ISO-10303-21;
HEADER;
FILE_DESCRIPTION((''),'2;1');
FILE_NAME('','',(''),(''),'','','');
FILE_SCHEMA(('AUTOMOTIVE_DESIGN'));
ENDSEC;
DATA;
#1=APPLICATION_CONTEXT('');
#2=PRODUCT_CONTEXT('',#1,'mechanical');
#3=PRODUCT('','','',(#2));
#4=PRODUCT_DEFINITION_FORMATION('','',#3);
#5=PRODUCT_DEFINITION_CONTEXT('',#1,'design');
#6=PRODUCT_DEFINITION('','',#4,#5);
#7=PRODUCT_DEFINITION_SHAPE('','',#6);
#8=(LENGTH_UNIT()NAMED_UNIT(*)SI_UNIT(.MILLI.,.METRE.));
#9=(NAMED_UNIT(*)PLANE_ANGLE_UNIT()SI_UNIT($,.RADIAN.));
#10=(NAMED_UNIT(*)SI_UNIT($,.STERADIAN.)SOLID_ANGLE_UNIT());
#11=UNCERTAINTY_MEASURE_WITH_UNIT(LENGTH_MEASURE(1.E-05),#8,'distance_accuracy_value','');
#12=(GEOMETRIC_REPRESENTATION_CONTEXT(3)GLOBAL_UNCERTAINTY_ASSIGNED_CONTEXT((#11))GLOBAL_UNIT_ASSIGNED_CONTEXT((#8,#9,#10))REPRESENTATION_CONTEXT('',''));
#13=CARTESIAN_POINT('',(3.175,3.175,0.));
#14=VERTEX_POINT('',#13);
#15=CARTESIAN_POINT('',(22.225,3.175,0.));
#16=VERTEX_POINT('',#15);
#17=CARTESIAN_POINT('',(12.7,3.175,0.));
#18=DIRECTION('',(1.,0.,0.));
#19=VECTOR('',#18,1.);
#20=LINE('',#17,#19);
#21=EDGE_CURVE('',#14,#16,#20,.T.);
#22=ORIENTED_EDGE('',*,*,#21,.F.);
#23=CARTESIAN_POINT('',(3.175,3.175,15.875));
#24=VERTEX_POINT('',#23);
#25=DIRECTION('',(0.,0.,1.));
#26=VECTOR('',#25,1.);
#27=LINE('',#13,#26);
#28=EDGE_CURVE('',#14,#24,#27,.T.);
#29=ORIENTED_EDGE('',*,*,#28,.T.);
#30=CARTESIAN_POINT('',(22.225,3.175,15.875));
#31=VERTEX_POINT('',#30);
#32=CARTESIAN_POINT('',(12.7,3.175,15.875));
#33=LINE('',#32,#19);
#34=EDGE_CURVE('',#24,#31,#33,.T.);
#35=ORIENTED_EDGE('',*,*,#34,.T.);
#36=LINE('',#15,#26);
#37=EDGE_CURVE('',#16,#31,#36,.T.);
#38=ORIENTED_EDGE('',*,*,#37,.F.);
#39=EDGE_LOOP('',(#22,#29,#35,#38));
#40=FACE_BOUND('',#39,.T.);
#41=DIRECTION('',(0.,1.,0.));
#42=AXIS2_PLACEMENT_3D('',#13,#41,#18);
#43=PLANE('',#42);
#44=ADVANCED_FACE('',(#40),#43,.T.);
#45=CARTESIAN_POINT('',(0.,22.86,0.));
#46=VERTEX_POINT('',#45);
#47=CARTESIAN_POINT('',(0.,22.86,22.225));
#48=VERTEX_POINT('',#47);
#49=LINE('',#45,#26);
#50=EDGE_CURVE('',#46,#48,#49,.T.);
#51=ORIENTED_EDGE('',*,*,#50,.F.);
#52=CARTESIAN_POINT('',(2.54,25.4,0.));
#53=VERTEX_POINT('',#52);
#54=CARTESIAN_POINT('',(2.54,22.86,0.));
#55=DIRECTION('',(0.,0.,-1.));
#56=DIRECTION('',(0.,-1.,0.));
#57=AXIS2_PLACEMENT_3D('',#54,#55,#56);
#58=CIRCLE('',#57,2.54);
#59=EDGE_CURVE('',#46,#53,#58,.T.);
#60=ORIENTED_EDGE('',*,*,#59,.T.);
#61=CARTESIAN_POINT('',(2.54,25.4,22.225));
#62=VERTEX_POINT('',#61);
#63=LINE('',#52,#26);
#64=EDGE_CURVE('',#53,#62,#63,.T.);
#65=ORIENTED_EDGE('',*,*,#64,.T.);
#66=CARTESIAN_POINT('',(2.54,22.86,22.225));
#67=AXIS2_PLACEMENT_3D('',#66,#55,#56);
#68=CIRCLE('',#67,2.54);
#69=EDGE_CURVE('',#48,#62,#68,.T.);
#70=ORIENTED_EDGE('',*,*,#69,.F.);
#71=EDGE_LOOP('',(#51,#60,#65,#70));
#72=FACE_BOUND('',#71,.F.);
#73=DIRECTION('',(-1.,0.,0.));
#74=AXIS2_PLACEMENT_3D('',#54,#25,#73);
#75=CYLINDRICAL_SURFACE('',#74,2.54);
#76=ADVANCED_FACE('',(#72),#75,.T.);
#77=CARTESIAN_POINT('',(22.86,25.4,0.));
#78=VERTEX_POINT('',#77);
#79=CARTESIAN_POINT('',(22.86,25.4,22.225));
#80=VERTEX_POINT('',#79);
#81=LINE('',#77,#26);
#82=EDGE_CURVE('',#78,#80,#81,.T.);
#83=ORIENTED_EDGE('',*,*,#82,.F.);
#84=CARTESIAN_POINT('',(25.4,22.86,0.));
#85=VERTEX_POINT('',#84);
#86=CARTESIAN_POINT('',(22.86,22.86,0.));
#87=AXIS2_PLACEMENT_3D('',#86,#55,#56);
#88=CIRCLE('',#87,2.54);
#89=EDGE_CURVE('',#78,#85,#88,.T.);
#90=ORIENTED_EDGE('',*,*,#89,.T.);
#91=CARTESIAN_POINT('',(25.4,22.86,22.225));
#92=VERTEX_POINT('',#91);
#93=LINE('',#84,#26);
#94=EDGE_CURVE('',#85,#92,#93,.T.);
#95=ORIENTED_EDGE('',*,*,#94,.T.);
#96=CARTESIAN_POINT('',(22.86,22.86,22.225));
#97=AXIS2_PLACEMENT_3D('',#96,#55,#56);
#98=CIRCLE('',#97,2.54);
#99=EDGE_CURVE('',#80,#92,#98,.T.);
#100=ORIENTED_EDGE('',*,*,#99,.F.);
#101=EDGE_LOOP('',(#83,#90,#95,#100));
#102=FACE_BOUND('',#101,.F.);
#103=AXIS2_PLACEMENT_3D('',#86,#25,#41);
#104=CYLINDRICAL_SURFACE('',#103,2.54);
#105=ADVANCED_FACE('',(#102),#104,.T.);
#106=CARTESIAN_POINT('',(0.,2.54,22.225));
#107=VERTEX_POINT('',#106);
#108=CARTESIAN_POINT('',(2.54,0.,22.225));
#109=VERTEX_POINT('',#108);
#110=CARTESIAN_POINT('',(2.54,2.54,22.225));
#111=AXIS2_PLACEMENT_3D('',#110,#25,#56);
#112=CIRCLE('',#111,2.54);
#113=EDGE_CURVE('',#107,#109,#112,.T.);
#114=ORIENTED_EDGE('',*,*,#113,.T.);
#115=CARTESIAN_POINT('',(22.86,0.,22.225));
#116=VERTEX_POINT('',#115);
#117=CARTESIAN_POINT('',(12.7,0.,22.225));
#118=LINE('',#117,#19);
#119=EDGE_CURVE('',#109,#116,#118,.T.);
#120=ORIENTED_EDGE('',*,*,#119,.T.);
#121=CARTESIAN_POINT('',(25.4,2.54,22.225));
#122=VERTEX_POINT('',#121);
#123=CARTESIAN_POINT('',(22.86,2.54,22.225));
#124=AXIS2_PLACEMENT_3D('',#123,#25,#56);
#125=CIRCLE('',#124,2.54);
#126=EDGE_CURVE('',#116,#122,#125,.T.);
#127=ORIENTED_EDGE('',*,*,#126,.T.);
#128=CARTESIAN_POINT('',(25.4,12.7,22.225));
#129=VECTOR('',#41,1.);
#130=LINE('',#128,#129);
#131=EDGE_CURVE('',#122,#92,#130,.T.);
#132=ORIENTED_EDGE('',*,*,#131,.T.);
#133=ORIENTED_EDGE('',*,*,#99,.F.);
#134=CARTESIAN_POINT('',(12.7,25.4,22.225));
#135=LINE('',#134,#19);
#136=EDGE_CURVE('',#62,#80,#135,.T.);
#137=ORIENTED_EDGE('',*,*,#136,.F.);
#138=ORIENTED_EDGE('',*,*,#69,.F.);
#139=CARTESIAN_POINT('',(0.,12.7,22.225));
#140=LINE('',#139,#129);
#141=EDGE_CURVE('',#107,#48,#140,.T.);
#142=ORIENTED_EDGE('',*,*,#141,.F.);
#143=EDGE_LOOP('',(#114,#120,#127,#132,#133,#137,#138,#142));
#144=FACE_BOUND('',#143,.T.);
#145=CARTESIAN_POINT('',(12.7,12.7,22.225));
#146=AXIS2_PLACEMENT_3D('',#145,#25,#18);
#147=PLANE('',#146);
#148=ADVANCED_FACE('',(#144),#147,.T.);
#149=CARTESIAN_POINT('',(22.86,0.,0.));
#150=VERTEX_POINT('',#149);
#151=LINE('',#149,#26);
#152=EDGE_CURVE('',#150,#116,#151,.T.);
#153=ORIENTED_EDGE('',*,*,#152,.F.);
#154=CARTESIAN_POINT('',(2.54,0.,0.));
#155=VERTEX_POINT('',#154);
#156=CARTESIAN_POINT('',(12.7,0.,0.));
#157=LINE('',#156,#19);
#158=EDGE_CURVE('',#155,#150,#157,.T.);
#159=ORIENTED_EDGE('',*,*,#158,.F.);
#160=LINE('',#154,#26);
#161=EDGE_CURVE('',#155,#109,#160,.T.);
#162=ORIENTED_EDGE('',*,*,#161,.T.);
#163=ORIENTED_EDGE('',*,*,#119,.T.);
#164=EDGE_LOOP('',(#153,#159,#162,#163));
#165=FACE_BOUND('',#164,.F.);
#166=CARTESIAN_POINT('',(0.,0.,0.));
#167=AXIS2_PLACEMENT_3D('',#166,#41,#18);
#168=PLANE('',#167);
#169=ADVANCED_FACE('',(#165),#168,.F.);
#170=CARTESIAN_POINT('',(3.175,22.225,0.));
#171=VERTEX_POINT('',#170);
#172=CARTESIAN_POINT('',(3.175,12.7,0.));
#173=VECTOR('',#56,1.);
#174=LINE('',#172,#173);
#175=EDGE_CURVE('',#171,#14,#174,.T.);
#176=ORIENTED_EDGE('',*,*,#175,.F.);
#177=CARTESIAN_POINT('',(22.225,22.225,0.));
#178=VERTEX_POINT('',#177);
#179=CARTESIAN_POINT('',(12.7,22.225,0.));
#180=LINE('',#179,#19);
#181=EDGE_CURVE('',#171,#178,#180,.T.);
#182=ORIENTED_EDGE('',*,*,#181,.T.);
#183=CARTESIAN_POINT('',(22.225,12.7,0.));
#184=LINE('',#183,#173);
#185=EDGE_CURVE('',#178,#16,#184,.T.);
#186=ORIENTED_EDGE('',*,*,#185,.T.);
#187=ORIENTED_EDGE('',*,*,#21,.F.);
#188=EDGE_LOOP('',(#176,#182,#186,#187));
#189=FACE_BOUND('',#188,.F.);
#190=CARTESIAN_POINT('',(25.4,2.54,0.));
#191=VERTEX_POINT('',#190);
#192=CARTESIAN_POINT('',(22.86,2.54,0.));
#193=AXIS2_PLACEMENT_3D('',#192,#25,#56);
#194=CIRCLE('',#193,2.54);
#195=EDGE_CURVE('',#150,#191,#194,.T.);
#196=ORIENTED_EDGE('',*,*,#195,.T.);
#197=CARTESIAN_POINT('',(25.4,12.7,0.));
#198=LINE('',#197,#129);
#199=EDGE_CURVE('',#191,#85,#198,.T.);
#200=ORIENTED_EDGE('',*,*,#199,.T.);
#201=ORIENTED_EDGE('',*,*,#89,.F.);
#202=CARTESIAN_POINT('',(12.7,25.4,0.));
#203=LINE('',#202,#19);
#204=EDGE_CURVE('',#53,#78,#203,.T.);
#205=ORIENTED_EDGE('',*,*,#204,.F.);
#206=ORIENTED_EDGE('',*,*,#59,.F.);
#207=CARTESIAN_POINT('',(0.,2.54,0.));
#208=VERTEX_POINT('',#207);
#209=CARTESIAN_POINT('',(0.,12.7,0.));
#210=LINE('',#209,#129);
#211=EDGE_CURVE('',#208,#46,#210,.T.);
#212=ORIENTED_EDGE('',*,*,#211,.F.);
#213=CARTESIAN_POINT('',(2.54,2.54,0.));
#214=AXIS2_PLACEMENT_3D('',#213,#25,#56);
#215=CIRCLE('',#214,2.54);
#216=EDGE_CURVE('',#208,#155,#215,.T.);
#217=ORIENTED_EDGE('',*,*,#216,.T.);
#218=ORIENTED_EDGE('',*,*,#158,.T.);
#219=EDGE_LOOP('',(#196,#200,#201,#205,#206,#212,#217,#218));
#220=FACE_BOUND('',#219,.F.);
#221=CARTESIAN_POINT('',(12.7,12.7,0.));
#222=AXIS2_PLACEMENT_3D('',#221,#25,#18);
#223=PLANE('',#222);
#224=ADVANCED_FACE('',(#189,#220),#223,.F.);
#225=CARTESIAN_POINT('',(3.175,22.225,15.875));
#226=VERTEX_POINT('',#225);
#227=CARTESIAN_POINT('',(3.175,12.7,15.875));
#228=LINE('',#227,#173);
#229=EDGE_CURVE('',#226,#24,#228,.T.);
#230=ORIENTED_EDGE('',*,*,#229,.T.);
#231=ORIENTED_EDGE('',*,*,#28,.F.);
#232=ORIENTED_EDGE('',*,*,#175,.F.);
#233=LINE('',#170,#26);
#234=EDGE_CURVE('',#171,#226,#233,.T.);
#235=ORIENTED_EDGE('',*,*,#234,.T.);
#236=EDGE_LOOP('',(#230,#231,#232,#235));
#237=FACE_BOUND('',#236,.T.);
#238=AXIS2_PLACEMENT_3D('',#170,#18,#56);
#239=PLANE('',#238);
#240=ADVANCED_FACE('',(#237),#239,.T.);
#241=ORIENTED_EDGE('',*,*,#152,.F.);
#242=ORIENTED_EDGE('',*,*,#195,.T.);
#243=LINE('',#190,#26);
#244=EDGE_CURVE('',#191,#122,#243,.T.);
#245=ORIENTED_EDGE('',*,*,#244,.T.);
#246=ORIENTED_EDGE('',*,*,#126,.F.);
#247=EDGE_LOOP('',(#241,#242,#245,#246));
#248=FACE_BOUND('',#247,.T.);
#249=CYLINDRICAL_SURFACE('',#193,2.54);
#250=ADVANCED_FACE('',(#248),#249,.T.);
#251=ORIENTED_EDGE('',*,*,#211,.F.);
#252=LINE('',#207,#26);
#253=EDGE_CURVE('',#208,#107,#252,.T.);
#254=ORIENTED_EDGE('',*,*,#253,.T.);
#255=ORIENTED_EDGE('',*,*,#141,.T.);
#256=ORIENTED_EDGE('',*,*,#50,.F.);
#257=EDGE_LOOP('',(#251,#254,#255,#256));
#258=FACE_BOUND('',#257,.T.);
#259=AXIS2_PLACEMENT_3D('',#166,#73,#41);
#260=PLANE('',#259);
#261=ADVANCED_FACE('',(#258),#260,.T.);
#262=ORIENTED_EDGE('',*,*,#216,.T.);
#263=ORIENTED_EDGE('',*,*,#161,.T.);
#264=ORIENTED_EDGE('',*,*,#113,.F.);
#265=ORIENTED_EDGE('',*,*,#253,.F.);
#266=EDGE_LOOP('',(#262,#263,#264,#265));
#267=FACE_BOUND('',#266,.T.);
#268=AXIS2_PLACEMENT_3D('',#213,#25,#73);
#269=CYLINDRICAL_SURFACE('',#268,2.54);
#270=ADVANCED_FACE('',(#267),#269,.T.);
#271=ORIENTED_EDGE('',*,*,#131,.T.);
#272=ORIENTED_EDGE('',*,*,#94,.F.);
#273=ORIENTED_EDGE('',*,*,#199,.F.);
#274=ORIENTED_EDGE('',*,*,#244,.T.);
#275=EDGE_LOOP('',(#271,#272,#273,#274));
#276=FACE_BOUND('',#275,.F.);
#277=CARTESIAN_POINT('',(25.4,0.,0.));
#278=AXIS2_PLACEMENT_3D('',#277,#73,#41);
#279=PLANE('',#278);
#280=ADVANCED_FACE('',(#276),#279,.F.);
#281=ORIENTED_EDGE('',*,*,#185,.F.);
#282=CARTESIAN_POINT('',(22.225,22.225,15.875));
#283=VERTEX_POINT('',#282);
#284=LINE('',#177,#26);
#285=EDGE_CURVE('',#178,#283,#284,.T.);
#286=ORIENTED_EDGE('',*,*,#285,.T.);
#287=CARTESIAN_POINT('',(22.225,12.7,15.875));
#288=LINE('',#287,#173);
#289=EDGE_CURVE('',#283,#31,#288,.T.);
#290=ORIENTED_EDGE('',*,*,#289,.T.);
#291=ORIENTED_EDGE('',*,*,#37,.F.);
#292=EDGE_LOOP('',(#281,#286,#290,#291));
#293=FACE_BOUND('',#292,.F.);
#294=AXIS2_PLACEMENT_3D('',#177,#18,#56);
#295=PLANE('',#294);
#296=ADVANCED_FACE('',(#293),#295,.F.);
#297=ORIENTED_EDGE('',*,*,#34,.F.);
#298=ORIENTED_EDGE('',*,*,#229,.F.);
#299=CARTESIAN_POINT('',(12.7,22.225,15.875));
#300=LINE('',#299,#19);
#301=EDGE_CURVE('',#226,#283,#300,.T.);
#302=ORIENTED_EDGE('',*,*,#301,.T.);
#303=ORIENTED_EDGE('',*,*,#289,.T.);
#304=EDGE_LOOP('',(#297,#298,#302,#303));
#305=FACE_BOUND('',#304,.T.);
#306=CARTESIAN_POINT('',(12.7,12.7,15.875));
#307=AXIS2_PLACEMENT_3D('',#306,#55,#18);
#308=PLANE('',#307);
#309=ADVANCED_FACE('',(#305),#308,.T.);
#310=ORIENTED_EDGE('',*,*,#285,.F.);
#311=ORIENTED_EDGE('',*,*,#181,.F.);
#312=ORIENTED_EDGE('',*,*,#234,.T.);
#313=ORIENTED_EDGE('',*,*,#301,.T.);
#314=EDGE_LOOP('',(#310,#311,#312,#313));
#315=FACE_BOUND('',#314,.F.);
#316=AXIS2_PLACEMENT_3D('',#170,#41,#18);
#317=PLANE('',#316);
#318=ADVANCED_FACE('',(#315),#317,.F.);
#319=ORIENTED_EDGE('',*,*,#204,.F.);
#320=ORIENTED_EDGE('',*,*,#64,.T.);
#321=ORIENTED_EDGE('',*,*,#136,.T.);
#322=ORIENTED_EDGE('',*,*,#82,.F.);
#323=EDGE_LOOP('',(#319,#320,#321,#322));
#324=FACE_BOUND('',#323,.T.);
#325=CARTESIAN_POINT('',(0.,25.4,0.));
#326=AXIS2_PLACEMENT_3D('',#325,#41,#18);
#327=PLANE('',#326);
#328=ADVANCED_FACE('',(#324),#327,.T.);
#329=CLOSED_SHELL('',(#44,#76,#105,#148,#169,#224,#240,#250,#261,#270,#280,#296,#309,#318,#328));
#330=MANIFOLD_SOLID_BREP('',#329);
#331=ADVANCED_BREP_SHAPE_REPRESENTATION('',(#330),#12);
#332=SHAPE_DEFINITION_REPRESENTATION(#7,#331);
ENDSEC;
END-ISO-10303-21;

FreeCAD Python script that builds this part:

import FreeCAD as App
import Part
import Sketcher
from FreeCAD import Vector
Q = App.Units.Quantity


def edges_at(feature, points):
    """Names of the edges that pass closest to the given points."""
    edges = feature.Shape.Edges
    near = lambda p: min(range(len(edges)), key=lambda i: edges[i].distToShape(Part.Vertex(*p))[0])
    return sorted({f"Edge{near(p) + 1}" for p in points})


def add_polygon(sketch, points):
    """Adds a closed chain of lines whose ends are joined by coincident constraints."""
    first, n = sketch.GeometryCount, len(points)
    for a, b in zip(points, points[1:] + points[:1]):
        sketch.addGeometry(Part.LineSegment(App.Vector(*a, 0), App.Vector(*b, 0)), False)
    for i in range(n):
        sketch.addConstraint(Sketcher.Constraint("Coincident", first + i, 2, first + (i + 1) % n, 1))

doc = App.newDocument("Part")
body = doc.addObject("PartDesign::Body", "Body")

# Sketch on XY plane
sketch1 = body.newObject("Sketcher::SketchObject", "Sketch")
sketch1.AttachmentSupport = (doc.getObject("XY_Plane"), [""])
sketch1.MapMode = "FlatFace"
add_polygon(sketch1, [(0, 25.4), (0, 0), (25.4, 0), (25.4, 25.4)])  # lines 0-3
sketch1.addConstraint([
    Sketcher.Constraint("Vertical", 0),
    Sketcher.Constraint("Horizontal", 1),
    Sketcher.Constraint("Vertical", 2),
    Sketcher.Constraint("Horizontal", 3),
    Sketcher.Constraint("Coincident", 0, 2, -1, 1),
    Sketcher.Constraint("Equal", 3, 0),
    Sketcher.Constraint("DistanceX", 1, 1, 1, 2, Q("1 in")),
])
pad1 = body.newObject("PartDesign::Pad", "Pad")
pad1.Profile = sketch1
pad1.Length = Q("0.875 in")

# Sketch on XY plane
sketch2 = body.newObject("Sketcher::SketchObject", "Sketch001")
sketch2.AttachmentSupport = (doc.getObject("XY_Plane"), [""])
sketch2.MapMode = "FlatFace"
add_polygon(sketch2, [(3.175, 3.175), (3.175, 22.225), (22.225, 22.225), (22.225, 3.175)])  # lines 0-3
sketch2.addConstraint([
    Sketcher.Constraint("Vertical", 0),
    Sketcher.Constraint("Horizontal", 1),
    Sketcher.Constraint("Vertical", 2),
    Sketcher.Constraint("Horizontal", 3),
    Sketcher.Constraint("Equal", 3, 0),
    Sketcher.Constraint("DistanceX", 1, 1, 1, 2, Q("0.75 in")),
    Sketcher.Constraint("DistanceX", -1, 1, 0, 2, Q("0.125 in")),
    Sketcher.Constraint("DistanceY", -1, 1, 0, 2, Q("0.875 in")),
])
pocket1 = body.newObject("PartDesign::Pocket", "Pocket")
pocket1.Profile = sketch2
pocket1.Length = Q("0.625 in")
pocket1.Reversed = True
doc.recompute()

fillet = body.newObject("PartDesign::Fillet", "Fillet")
fillet.Base = (pocket1, edges_at(pocket1, [
    (25.4, 0, 11.113),
    (25.4, 25.4, 11.113),
    (0, 25.4, 11.113),
    (0, 0, 11.113),
]))
fillet.Radius = Q("0.1 in")

doc.recompute()
